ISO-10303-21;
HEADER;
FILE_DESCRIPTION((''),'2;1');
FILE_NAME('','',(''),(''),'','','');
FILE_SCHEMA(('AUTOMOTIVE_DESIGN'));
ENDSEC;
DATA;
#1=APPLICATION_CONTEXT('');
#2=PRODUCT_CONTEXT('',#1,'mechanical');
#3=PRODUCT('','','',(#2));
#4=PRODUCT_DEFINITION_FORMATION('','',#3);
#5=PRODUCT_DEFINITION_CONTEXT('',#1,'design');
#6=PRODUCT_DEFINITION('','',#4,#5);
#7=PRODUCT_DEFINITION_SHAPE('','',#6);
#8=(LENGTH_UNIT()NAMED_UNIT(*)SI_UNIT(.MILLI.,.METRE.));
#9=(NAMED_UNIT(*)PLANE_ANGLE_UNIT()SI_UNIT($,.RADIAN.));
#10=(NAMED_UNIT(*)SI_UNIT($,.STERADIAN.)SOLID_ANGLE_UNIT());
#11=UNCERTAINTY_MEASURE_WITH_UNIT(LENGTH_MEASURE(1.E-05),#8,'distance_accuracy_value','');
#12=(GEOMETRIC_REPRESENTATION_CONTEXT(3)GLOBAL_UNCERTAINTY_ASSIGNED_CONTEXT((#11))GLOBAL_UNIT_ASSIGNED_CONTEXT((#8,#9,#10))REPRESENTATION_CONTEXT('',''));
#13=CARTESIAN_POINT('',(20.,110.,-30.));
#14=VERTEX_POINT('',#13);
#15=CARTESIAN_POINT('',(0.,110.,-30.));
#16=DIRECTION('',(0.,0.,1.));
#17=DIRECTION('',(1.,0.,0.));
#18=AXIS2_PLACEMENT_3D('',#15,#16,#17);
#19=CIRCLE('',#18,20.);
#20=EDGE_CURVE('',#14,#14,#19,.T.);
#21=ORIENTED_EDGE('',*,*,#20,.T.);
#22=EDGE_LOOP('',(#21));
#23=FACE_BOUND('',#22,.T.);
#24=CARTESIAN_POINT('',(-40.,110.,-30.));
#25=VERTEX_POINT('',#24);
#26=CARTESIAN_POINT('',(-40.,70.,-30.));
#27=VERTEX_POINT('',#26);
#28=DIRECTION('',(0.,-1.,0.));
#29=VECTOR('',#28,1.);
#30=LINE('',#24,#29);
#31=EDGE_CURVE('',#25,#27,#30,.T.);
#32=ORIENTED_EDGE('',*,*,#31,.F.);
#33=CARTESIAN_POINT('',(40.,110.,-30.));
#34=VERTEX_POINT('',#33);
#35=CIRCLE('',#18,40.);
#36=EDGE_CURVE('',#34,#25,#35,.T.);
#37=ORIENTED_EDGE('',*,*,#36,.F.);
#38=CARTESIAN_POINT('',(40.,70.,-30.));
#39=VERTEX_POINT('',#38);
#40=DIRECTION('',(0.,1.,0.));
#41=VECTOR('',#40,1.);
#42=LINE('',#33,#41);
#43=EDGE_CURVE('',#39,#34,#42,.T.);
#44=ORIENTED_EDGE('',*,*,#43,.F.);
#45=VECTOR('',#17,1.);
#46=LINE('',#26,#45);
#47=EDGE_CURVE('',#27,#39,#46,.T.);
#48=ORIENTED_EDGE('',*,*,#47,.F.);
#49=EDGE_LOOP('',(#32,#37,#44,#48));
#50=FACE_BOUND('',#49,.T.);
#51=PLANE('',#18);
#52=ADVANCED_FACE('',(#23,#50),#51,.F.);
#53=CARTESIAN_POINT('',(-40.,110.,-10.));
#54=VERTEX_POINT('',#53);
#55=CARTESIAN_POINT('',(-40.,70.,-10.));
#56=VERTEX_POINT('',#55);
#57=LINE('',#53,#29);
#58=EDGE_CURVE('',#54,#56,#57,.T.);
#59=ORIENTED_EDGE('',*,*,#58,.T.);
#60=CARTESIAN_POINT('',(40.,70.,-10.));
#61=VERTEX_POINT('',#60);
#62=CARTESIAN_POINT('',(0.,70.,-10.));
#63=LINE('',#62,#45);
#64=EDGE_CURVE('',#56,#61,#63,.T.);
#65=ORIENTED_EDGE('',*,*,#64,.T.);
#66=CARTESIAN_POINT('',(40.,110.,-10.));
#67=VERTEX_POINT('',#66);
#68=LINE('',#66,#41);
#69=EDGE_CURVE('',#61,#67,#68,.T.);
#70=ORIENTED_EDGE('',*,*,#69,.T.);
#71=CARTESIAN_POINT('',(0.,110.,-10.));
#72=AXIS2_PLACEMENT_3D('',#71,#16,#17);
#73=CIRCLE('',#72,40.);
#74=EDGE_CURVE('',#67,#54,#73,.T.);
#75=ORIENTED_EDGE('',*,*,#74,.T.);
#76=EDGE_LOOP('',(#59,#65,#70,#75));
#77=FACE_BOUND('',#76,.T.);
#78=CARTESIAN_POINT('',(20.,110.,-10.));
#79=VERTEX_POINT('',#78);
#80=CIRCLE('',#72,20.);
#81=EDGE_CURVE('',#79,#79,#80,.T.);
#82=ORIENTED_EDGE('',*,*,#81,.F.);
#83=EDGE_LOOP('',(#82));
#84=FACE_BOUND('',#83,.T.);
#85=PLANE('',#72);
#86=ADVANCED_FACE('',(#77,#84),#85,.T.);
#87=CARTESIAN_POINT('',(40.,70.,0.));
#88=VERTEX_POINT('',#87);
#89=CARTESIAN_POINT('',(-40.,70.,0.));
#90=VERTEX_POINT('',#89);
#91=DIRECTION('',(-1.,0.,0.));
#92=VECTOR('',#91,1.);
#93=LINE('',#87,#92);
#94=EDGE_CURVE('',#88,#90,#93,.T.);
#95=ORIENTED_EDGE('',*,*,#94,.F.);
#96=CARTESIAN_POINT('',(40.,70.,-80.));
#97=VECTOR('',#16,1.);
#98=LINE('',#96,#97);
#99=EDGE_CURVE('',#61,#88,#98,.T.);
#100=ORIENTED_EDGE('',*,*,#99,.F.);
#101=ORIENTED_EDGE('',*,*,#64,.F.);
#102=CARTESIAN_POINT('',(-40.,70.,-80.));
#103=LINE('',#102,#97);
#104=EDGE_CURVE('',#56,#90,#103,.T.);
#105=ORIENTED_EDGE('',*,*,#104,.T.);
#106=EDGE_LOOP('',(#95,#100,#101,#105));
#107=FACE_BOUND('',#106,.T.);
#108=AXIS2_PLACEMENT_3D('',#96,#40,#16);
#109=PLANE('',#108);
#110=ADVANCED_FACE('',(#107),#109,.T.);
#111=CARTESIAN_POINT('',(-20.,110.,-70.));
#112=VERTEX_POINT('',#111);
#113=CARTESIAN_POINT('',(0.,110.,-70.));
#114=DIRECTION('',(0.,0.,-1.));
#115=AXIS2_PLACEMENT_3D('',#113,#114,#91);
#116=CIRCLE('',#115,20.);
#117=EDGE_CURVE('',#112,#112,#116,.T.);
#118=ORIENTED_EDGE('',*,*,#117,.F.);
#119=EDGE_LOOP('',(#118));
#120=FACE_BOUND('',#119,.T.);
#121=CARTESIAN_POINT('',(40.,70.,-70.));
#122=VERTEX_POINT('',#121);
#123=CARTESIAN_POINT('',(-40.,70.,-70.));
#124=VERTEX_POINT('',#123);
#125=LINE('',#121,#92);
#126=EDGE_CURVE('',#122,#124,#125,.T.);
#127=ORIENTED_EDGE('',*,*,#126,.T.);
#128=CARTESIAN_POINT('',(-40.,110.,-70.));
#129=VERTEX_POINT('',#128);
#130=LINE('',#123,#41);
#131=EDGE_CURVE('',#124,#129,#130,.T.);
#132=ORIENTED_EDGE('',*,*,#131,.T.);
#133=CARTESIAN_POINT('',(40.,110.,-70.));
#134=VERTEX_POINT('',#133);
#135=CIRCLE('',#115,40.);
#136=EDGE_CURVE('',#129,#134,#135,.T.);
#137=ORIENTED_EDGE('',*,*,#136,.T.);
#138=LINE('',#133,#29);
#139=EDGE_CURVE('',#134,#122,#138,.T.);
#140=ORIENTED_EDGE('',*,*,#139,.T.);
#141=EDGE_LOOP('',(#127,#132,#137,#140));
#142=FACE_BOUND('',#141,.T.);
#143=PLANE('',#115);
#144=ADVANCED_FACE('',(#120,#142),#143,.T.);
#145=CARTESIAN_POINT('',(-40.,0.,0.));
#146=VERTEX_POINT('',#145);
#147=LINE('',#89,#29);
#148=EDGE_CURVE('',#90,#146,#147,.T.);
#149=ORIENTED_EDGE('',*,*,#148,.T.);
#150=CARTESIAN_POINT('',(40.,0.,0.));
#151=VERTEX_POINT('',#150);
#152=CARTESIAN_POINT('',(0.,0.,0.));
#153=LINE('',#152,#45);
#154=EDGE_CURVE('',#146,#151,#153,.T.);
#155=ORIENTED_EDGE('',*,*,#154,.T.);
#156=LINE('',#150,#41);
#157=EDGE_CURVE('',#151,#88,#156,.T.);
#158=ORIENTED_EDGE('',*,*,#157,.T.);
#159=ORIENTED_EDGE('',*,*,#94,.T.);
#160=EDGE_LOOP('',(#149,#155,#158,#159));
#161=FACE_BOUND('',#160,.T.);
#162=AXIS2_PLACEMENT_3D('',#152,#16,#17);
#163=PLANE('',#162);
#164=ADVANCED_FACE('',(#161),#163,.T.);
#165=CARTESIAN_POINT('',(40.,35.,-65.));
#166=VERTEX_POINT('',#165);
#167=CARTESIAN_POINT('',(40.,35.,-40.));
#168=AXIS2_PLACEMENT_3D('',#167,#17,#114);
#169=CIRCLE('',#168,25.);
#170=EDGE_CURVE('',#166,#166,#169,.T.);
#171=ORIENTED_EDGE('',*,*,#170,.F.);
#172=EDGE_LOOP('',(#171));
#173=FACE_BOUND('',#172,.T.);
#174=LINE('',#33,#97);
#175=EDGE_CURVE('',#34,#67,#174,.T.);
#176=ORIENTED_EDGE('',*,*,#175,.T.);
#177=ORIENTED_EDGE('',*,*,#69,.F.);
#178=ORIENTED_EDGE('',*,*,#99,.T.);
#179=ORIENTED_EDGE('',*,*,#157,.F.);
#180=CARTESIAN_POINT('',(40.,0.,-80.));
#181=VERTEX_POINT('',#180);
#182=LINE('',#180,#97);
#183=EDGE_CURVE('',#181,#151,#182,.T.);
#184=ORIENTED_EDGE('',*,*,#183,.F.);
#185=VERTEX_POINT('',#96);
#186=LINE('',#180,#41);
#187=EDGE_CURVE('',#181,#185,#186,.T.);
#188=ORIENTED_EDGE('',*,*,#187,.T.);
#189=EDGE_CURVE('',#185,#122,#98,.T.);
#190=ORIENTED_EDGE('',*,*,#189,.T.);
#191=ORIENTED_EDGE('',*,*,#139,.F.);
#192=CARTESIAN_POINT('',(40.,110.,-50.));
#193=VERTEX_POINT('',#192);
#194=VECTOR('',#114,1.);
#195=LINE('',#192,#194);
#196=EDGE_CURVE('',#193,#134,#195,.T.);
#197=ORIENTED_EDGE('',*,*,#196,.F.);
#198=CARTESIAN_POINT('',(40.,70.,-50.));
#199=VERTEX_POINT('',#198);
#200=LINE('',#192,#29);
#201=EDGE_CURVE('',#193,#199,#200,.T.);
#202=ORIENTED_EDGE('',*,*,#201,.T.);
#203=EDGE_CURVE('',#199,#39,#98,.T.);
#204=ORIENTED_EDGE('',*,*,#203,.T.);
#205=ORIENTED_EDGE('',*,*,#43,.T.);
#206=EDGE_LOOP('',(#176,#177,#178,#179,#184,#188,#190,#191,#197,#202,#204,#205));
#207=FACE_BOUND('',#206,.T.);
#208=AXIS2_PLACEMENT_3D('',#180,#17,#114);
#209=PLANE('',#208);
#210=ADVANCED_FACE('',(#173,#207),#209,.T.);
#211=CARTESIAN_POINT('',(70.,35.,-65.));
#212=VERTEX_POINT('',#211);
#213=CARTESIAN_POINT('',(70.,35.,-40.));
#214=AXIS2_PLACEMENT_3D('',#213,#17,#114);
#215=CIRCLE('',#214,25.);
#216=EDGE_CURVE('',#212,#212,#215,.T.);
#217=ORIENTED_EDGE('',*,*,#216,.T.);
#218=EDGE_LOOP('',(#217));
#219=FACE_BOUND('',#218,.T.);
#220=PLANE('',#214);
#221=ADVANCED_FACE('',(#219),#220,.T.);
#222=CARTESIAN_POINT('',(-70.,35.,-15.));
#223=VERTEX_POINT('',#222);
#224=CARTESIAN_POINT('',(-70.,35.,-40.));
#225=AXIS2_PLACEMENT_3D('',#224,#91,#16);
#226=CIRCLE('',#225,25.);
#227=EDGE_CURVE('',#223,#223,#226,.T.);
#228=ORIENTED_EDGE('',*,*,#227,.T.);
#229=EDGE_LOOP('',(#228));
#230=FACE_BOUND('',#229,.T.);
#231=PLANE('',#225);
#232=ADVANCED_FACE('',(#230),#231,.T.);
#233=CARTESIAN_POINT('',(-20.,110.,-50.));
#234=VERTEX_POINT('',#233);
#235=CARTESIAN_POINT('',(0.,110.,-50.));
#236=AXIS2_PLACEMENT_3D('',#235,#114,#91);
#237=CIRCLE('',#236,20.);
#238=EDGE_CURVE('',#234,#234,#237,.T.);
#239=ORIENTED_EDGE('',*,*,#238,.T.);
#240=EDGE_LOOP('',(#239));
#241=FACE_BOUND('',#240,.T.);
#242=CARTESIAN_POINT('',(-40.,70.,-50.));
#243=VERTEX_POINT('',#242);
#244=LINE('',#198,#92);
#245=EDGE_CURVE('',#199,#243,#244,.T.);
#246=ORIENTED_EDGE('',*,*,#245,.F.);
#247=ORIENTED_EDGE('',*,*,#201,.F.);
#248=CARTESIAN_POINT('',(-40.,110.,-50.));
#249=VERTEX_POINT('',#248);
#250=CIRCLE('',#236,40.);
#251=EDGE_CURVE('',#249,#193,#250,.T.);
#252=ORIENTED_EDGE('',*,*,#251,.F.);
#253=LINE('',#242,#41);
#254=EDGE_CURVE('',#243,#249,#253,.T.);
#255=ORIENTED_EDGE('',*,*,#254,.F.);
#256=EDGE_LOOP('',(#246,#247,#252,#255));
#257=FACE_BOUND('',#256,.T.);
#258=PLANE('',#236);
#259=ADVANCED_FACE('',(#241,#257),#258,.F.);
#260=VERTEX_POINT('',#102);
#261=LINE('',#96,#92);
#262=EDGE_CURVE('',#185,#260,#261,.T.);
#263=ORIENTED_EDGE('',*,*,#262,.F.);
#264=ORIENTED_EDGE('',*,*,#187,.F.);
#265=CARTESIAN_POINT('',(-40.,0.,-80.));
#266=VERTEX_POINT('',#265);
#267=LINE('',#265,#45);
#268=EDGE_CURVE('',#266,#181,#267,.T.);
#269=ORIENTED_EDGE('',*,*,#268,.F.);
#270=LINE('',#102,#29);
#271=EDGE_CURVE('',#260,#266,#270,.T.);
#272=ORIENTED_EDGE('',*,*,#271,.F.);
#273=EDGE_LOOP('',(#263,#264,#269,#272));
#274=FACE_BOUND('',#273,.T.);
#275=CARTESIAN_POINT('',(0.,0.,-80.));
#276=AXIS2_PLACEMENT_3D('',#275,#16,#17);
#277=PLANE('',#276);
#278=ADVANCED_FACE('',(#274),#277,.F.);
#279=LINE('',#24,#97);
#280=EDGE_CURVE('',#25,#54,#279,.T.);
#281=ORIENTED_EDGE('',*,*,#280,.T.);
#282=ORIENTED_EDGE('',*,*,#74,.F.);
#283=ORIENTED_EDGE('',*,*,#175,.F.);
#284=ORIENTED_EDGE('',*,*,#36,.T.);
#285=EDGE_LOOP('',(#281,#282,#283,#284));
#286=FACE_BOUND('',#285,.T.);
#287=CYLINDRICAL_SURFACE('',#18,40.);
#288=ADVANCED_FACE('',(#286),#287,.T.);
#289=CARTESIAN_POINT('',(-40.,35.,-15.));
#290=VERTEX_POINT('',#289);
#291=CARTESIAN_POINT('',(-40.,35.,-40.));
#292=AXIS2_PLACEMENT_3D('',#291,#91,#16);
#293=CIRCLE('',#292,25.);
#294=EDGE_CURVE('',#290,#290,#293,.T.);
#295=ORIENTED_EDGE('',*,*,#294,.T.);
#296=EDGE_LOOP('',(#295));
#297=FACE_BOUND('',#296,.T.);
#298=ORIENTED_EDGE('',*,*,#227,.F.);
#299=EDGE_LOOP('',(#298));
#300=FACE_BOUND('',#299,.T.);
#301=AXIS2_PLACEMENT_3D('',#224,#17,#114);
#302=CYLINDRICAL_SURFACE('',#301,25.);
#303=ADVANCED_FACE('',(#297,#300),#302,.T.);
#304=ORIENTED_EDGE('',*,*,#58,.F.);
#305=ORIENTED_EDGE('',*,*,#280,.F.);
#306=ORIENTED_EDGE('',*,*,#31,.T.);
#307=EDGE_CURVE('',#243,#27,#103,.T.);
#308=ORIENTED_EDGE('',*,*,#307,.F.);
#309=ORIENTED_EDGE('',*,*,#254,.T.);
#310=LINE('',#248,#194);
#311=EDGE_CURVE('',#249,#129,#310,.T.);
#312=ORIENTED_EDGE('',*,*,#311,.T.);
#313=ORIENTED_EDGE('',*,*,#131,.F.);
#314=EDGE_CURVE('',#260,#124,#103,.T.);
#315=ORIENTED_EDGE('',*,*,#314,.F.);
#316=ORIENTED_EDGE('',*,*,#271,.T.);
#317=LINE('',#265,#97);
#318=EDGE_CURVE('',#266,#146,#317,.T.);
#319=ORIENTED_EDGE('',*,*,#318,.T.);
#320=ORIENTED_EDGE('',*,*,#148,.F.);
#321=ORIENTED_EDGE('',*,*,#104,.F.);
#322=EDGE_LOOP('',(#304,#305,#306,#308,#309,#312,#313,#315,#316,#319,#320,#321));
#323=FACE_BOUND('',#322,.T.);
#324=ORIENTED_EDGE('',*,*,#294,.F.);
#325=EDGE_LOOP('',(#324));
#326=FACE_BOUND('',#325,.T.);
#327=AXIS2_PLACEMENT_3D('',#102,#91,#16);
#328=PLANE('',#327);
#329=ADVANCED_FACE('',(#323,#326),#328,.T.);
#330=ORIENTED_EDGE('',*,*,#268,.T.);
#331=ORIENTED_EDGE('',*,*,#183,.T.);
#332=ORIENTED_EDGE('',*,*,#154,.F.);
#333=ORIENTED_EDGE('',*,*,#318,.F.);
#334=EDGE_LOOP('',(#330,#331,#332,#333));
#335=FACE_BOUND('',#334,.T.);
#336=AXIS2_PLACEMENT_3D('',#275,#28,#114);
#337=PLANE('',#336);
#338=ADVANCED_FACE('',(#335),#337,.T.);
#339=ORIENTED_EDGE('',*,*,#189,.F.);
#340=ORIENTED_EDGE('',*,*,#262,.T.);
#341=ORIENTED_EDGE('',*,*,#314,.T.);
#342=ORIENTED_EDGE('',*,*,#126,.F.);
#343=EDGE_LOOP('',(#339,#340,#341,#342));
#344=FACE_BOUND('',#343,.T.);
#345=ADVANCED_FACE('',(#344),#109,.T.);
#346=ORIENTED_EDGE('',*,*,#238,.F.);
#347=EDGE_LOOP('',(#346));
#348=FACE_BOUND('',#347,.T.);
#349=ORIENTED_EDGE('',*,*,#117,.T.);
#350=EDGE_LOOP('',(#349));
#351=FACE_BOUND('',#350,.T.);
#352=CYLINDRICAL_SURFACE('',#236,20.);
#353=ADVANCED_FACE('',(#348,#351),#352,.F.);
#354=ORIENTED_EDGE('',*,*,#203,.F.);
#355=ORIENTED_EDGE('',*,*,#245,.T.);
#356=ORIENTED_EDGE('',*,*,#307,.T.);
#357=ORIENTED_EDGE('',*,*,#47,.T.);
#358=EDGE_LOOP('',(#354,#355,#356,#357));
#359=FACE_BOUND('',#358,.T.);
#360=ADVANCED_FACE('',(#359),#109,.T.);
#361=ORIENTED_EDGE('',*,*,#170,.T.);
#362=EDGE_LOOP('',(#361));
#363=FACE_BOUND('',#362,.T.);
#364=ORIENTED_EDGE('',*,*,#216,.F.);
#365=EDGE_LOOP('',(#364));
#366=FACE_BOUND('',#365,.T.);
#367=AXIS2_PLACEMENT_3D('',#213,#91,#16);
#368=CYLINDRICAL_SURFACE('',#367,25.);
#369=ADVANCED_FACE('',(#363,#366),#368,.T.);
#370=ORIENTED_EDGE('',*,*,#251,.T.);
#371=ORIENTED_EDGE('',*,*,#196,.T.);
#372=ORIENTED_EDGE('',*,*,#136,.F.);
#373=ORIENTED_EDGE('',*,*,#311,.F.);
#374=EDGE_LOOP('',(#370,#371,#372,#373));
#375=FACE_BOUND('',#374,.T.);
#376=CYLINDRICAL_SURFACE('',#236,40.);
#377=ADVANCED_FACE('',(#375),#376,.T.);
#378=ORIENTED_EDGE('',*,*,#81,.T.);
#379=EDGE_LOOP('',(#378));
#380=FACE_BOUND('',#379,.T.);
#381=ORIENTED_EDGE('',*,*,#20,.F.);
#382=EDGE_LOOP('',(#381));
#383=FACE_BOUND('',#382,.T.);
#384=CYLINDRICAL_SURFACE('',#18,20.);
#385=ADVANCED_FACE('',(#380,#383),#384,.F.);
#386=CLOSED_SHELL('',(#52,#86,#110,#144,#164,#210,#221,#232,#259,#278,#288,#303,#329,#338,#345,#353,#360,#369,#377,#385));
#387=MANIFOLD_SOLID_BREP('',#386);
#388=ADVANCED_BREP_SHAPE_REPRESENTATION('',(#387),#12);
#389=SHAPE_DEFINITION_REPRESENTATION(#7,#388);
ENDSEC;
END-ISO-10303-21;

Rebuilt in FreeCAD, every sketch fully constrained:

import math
import FreeCAD as App
import Part
import Sketcher

V = App.Vector
Q = App.Units.Quantity

doc = App.newDocument("Part")
params = doc.addObject("Spreadsheet::Sheet", "Params")
for row, (alias, value) in enumerate([
    ("sketch1_width", "80 mm"),
    ("sketch1_height", "70 mm"),
    ("pad1_length", "80 mm"),
    ("sketch2_diameter", "50 mm"),
    ("pad2_length", "30 mm"),
    ("sketch3_diameter", "50 mm"),
    ("pad3_length", "30 mm"),
    ("sketch4_diameter", "40 mm"),
    ("sketch4_radius", "40 mm"),
    ("sketch4_height", "40 mm"),
    ("pad4_length", "20 mm"),
    ("sketch5_diameter", "40 mm"),
    ("sketch5_radius", "40 mm"),
    ("sketch5_height", "40 mm"),
    ("pad5_length", "20 mm"),
], start=1):
    params.set(f"A{row}", alias)
    params.set(f"B{row}", "=" + value)
    params.setAlias(f"B{row}", alias)

body = doc.addObject("PartDesign::Body", "Body")

# Sketch on XY plane
sketch1 = body.newObject("Sketcher::SketchObject", "Sketch")
sketch1.AttachmentSupport = (doc.getObject("XY_Plane"), [""])
sketch1.MapMode = "FlatFace"
sketch1.addGeometry([
    Part.LineSegment(V(40, 0, 0), V(40, 70, 0)),
    Part.LineSegment(V(40, 70, 0), V(-40, 70, 0)),
    Part.LineSegment(V(-40, 70, 0), V(-40, 0, 0)),
    Part.LineSegment(V(-40, 0, 0), V(40, 0, 0)),
], False)
sketch1.addConstraint([
    Sketcher.Constraint("Coincident", 0, 2, 1, 1),
    Sketcher.Constraint("Coincident", 1, 2, 2, 1),
    Sketcher.Constraint("Coincident", 2, 2, 3, 1),
    Sketcher.Constraint("Coincident", 3, 2, 0, 1),
    Sketcher.Constraint("Vertical", 0),
    Sketcher.Constraint("Horizontal", 1),
    Sketcher.Constraint("Vertical", 2),
    Sketcher.Constraint("Horizontal", 3),
    Sketcher.Constraint("Symmetric", 2, 2, 3, 2, -1, 1),
    Sketcher.Constraint("DistanceX", 1, 2, 1, 1, Q("80 mm")),
    Sketcher.Constraint("DistanceY", 0, 1, 0, 2, Q("70 mm")),
])
sketch1.setExpression("Constraints[9]", "Params.sketch1_width")
sketch1.setExpression("Constraints[10]", "Params.sketch1_height")
pad1 = body.newObject("PartDesign::Pad", "Pad")
pad1.Profile = sketch1
pad1.setExpression("Length", "Params.pad1_length")
pad1.Reversed = True

# Sketch on YZ plane
sketch2 = body.newObject("Sketcher::SketchObject", "Sketch001")
sketch2.AttachmentSupport = (doc.getObject("YZ_Plane"), [""])
sketch2.MapMode = "FlatFace"
sketch2.AttachmentOffset = App.Placement(V(0, 0, 40), App.Rotation())
sketch2.addGeometry(Part.Circle(V(35, -40, 0), V(0, 0, 1), 25), False)
sketch2.addConstraint([
    Sketcher.Constraint("Diameter", 0, Q("50 mm")),
    Sketcher.Constraint("DistanceX", -1, 1, 0, 3, Q("35 mm")),
    Sketcher.Constraint("DistanceY", 0, 3, -1, 1, Q("40 mm")),
])
sketch2.setExpression("Constraints[0]", "Params.sketch2_diameter")
pad2 = body.newObject("PartDesign::Pad", "Pad001")
pad2.Profile = sketch2
pad2.setExpression("Length", "Params.pad2_length")

# Sketch on YZ plane
sketch3 = body.newObject("Sketcher::SketchObject", "Sketch002")
sketch3.AttachmentSupport = (doc.getObject("YZ_Plane"), [""])
sketch3.MapMode = "FlatFace"
sketch3.AttachmentOffset = App.Placement(V(0, 0, -70), App.Rotation())
sketch3.addGeometry(Part.Circle(V(35, -40, 0), V(0, 0, 1), 25), False)
sketch3.addConstraint([
    Sketcher.Constraint("Diameter", 0, Q("50 mm")),
    Sketcher.Constraint("DistanceX", -1, 1, 0, 3, Q("35 mm")),
    Sketcher.Constraint("DistanceY", 0, 3, -1, 1, Q("40 mm")),
])
sketch3.setExpression("Constraints[0]", "Params.sketch3_diameter")
pad3 = body.newObject("PartDesign::Pad", "Pad002")
pad3.Profile = sketch3
pad3.setExpression("Length", "Params.pad3_length")

# Sketch on XY plane
sketch4 = body.newObject("Sketcher::SketchObject", "Sketch003")
sketch4.AttachmentSupport = (doc.getObject("XY_Plane"), [""])
sketch4.MapMode = "FlatFace"
sketch4.AttachmentOffset = App.Placement(V(0, 0, -10), App.Rotation())
sketch4.addGeometry([
    Part.LineSegment(V(-40, 110, 0), V(-40, 70, 0)),  # 0
    Part.LineSegment(V(-40, 70, 0), V(40, 70, 0)),  # 1
    Part.LineSegment(V(40, 70, 0), V(40, 110, 0)),  # 2
    Part.ArcOfCircle(Part.Circle(V(0, 110, 0), V(0, 0, 1), 40), math.radians(0), math.radians(180)),  # 3
    Part.Circle(V(0, 110, 0), V(0, 0, 1), 20),  # 4
], False)
sketch4.addConstraint([
    Sketcher.Constraint("Coincident", 0, 2, 1, 1),
    Sketcher.Constraint("Coincident", 1, 2, 2, 1),
    Sketcher.Constraint("Tangent", 2, 2, 3, 1),
    Sketcher.Constraint("Tangent", 3, 2, 0, 1),
    Sketcher.Constraint("Vertical", 0),
    Sketcher.Constraint("Horizontal", 1),
    Sketcher.Constraint("Vertical", 2),
    Sketcher.Constraint("Coincident", 4, 3, 3, 3),
    Sketcher.Constraint("PointOnObject", 3, 3, -2),
    Sketcher.Constraint("Diameter", 4, Q("40 mm")),
    Sketcher.Constraint("Radius", 3, Q("40 mm")),
    Sketcher.Constraint("DistanceY", 0, 2, 0, 1, Q("40 mm")),
    Sketcher.Constraint("DistanceY", -1, 1, 3, 3, Q("110 mm")),
])
sketch4.setExpression("Constraints[9]", "Params.sketch4_diameter")
sketch4.setExpression("Constraints[10]", "Params.sketch4_radius")
sketch4.setExpression("Constraints[11]", "Params.sketch4_height")
pad4 = body.newObject("PartDesign::Pad", "Pad003")
pad4.Profile = sketch4
pad4.setExpression("Length", "Params.pad4_length")
pad4.Reversed = True

# Sketch on XY plane
sketch5 = body.newObject("Sketcher::SketchObject", "Sketch004")
sketch5.AttachmentSupport = (doc.getObject("XY_Plane"), [""])
sketch5.MapMode = "FlatFace"
sketch5.AttachmentOffset = App.Placement(V(0, 0, -50), App.Rotation())
sketch5.addGeometry([
    Part.LineSegment(V(40, 110, 0), V(40, 70, 0)),  # 0
    Part.LineSegment(V(40, 70, 0), V(-40, 70, 0)),  # 1
    Part.LineSegment(V(-40, 70, 0), V(-40, 110, 0)),  # 2
    Part.ArcOfCircle(Part.Circle(V(0, 110, 0), V(0, 0, 1), 40), math.radians(0), math.radians(180)),  # 3
    Part.Circle(V(0, 110, 0), V(0, 0, 1), 20),  # 4
], False)
sketch5.addConstraint([
    Sketcher.Constraint("Coincident", 0, 2, 1, 1),
    Sketcher.Constraint("Coincident", 1, 2, 2, 1),
    Sketcher.Constraint("Tangent", 2, 2, 3, 2),
    Sketcher.Constraint("Tangent", 3, 1, 0, 1),
    Sketcher.Constraint("Vertical", 0),
    Sketcher.Constraint("Horizontal", 1),
    Sketcher.Constraint("Vertical", 2),
    Sketcher.Constraint("Coincident", 4, 3, 3, 3),
    Sketcher.Constraint("PointOnObject", 3, 3, -2),
    Sketcher.Constraint("Diameter", 4, Q("40 mm")),
    Sketcher.Constraint("Radius", 3, Q("40 mm")),
    Sketcher.Constraint("DistanceY", 0, 2, 0, 1, Q("40 mm")),
    Sketcher.Constraint("DistanceY", -1, 1, 3, 3, Q("110 mm")),
])
sketch5.setExpression("Constraints[9]", "Params.sketch5_diameter")
sketch5.setExpression("Constraints[10]", "Params.sketch5_radius")
sketch5.setExpression("Constraints[11]", "Params.sketch5_height")
pad5 = body.newObject("PartDesign::Pad", "Pad004")
pad5.Profile = sketch5
pad5.setExpression("Length", "Params.pad5_length")
pad5.Reversed = True

doc.recompute()
